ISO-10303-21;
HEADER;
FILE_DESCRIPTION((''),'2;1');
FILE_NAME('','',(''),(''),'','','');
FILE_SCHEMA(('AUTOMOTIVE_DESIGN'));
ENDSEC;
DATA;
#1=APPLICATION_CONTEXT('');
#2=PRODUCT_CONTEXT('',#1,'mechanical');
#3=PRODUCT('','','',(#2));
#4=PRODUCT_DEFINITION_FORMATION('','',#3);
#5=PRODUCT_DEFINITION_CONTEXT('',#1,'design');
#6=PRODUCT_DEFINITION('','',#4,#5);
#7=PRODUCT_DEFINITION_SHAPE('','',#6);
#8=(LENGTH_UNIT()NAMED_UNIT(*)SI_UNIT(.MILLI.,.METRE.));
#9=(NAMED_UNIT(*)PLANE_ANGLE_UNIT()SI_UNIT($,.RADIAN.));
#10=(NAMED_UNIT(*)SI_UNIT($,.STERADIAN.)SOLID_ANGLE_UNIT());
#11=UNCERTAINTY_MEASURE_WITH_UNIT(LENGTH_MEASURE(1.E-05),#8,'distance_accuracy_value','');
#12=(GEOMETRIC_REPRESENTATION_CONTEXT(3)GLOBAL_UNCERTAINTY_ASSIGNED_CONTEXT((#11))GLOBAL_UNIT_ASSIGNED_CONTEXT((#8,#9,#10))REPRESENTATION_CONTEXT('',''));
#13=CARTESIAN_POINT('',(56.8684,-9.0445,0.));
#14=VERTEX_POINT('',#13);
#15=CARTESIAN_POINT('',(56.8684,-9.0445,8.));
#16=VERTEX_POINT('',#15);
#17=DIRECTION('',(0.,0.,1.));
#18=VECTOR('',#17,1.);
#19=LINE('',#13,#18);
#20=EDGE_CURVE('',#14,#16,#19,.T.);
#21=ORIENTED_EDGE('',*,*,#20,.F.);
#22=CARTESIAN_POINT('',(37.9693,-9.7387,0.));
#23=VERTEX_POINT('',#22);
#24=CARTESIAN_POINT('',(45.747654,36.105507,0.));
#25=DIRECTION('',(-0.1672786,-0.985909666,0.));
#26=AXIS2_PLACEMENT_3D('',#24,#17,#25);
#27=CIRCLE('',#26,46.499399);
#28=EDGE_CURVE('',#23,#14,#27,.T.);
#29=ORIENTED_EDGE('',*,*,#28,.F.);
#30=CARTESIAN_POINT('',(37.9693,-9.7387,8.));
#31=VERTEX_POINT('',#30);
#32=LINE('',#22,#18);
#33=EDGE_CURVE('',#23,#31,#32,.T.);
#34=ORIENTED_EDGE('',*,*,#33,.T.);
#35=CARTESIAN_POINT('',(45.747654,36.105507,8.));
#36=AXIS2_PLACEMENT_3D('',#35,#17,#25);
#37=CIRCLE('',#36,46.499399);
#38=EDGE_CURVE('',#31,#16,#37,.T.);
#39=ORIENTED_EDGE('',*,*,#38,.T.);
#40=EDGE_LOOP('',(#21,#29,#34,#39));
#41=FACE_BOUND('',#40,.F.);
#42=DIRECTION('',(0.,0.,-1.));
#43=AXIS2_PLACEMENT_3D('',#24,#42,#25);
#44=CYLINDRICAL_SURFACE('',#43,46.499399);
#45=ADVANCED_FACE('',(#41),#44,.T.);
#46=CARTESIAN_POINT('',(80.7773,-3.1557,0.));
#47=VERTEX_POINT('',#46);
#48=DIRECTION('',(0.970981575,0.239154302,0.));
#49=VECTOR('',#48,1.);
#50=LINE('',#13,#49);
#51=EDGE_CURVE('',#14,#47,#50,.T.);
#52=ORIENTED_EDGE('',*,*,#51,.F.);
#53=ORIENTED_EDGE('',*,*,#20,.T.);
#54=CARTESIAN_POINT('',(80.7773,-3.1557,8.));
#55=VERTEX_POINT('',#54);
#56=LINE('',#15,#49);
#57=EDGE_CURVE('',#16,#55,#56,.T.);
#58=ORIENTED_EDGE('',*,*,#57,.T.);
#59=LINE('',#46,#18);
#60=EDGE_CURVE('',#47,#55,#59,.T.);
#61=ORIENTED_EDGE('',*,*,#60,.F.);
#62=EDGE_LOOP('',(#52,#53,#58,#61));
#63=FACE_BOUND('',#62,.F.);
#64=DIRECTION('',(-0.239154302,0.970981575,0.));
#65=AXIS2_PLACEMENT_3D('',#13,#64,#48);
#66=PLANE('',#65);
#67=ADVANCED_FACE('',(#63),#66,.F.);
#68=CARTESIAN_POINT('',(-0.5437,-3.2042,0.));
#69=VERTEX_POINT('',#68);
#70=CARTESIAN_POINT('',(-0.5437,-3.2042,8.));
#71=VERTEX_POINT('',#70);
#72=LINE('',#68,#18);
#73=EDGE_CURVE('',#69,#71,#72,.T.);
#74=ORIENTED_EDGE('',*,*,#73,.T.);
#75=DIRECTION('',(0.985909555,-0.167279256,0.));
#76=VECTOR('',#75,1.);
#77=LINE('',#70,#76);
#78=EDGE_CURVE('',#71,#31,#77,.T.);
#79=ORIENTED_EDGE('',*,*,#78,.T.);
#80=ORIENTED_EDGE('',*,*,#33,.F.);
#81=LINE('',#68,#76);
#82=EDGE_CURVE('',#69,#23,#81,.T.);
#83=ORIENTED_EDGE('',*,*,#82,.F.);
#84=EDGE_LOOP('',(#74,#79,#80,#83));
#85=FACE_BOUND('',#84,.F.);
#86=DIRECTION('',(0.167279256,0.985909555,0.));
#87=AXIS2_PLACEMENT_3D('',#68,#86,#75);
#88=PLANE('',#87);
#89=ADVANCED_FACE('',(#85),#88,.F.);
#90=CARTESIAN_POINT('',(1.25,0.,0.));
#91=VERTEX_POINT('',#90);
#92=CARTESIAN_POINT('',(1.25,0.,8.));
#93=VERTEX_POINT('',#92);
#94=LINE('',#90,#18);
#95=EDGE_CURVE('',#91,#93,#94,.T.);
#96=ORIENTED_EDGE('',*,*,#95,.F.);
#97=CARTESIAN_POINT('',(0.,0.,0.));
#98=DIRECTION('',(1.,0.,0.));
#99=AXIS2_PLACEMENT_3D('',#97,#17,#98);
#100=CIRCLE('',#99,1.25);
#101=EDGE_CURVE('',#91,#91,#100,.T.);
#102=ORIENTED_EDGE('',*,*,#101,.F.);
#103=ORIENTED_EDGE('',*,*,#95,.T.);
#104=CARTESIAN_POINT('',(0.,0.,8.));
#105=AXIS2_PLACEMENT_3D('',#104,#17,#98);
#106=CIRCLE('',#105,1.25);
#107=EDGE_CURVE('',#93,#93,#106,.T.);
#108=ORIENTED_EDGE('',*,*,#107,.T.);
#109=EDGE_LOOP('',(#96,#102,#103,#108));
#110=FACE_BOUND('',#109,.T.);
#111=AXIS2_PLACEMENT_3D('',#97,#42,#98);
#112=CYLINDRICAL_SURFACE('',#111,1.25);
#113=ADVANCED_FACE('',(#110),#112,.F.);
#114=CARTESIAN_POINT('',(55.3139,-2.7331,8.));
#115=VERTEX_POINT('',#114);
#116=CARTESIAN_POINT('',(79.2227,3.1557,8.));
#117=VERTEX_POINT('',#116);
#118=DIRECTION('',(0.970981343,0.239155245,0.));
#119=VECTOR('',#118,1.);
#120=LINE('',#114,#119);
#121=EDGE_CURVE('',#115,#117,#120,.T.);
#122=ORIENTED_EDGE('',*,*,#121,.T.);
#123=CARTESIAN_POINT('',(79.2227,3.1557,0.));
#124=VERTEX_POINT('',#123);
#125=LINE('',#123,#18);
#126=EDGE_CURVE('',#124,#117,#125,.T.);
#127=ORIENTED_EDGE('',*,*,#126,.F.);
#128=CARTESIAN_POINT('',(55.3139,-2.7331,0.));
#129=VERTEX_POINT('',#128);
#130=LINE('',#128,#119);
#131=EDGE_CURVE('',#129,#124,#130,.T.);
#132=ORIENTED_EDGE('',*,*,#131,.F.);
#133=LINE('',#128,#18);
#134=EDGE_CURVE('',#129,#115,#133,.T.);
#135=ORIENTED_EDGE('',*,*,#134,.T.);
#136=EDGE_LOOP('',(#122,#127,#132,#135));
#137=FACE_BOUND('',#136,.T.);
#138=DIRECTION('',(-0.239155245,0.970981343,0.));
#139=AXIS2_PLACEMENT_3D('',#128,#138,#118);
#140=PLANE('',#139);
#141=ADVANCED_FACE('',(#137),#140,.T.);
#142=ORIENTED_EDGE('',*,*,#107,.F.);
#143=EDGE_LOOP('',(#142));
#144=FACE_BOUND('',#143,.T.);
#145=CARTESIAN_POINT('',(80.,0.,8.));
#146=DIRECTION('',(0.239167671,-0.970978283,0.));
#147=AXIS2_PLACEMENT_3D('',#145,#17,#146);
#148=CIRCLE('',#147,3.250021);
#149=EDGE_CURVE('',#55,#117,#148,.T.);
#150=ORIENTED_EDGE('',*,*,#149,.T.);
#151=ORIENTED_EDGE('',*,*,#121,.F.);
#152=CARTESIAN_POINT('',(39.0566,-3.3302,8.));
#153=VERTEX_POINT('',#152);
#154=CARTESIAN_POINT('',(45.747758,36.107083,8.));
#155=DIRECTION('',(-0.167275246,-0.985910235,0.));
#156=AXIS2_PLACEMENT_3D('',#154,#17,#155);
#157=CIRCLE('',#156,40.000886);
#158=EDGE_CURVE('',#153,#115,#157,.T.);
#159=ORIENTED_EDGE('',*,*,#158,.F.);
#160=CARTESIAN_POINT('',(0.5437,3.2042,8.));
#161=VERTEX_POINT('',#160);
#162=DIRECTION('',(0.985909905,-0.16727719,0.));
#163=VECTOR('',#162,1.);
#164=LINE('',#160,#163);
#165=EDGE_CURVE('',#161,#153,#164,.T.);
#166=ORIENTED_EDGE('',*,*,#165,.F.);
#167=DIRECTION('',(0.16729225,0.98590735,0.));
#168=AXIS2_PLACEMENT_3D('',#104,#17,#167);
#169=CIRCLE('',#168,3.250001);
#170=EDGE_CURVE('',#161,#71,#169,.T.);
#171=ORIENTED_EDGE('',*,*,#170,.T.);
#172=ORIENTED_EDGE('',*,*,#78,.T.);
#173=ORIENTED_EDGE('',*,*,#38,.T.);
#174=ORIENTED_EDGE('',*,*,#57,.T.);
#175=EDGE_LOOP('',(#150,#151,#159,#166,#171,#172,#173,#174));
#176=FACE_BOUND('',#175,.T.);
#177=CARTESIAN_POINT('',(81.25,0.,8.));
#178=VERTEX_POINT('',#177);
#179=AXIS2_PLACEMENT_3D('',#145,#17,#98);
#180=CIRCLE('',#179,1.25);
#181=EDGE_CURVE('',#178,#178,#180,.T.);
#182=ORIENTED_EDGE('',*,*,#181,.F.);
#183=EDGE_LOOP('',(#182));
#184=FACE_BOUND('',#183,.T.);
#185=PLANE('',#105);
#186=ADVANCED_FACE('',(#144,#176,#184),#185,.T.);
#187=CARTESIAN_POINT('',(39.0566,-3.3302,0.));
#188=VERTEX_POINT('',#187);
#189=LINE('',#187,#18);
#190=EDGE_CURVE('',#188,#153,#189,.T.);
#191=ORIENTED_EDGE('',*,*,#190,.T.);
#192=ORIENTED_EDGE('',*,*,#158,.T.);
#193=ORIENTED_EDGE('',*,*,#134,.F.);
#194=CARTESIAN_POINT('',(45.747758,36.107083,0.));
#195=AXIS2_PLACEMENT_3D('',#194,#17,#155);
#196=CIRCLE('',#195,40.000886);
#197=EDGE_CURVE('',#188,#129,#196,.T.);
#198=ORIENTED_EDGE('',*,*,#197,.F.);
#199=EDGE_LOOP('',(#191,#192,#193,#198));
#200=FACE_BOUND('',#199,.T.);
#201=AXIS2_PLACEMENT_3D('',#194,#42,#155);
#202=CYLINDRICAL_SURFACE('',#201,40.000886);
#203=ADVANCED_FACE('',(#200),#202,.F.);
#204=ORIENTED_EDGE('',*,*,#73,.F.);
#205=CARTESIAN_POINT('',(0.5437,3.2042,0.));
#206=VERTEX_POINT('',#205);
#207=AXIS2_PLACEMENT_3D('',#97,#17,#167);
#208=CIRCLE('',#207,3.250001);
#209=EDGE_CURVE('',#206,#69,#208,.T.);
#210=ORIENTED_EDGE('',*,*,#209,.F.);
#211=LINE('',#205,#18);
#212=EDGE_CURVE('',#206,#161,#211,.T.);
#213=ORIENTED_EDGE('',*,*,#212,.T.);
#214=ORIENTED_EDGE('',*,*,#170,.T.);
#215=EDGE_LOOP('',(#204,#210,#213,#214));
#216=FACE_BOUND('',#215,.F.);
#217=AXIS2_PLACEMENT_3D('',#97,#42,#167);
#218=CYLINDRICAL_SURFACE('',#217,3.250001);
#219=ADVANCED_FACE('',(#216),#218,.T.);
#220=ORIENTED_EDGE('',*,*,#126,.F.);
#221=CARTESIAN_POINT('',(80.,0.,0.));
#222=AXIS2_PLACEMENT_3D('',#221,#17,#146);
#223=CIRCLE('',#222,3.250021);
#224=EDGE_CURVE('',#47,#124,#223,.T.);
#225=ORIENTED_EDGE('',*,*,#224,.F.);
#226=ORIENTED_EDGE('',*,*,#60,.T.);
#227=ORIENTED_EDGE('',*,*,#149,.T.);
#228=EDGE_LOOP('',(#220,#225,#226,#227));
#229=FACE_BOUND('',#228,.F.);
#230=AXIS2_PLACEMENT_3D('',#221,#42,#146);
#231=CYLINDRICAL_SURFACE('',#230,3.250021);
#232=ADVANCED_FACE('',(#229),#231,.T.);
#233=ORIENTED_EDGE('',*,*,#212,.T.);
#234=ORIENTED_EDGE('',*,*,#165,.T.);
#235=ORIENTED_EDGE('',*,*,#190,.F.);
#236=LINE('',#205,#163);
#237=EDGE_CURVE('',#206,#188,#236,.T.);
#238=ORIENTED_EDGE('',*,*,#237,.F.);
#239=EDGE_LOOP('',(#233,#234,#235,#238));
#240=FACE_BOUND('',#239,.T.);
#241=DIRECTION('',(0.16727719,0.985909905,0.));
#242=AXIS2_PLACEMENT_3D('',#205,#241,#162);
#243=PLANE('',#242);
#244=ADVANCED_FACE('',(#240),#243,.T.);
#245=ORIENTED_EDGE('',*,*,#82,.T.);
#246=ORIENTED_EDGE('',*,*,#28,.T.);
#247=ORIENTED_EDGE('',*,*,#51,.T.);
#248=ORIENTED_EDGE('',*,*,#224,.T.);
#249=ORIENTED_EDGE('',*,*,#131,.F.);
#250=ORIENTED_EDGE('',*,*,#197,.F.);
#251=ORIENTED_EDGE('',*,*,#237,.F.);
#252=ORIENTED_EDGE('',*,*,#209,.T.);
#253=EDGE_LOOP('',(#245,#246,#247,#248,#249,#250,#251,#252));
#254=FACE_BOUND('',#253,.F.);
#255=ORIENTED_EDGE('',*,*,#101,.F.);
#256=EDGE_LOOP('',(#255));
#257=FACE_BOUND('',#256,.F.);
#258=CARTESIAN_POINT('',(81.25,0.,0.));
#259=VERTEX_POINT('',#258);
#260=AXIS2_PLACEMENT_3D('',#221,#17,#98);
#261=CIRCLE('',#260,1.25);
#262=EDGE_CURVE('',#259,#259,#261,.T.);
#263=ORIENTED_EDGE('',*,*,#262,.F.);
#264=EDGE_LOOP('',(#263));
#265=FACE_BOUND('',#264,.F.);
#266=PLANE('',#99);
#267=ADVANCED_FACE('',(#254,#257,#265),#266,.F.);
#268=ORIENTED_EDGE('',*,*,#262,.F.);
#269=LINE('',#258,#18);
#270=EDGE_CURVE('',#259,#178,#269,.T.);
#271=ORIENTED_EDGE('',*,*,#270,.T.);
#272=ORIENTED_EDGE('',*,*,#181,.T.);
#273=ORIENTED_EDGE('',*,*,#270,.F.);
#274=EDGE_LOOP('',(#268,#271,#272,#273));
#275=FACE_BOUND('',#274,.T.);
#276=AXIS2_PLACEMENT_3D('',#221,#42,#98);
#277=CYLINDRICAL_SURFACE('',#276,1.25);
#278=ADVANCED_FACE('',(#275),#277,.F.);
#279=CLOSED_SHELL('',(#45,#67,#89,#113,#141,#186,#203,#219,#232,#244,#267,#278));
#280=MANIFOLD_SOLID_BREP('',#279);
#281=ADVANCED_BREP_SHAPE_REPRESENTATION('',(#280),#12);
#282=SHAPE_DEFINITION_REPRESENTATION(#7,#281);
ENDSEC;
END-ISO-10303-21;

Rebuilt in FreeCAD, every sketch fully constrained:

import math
import FreeCAD as App
import Part
import Sketcher

V = App.Vector
Q = App.Units.Quantity

doc = App.newDocument("Part")
params = doc.addObject("Spreadsheet::Sheet", "Params")
for row, (alias, value) in enumerate([
    ("sketch1_radius", "40 mm"),
    ("sketch1_diameter", "2.5 mm"),
    ("sketch1_radius2", "46.5 mm"),
    ("pad1_length", "8 mm"),
], start=1):
    params.set(f"A{row}", alias)
    params.set(f"B{row}", "=" + value)
    params.setAlias(f"B{row}", alias)

body = doc.addObject("PartDesign::Body", "Body")

# Sketch on XY plane
sketch1 = doc.addObject("Sketcher::SketchObject", "Sketch")
body.addObject(sketch1)
sketch1.AttachmentSupport = (doc.XY_Plane, [""])
sketch1.MapMode = "FlatFace"
sketch1.addGeometry([
    Part.LineSegment(V(39.1, -3.3, 0), V(0.5, 3.2, 0)),  # 0
    Part.ArcOfCircle(Part.Circle(V(0, 0, 0), V(0, 0, 1), 3.3), math.radians(80), math.radians(260)),  # 1
    Part.LineSegment(V(-0.5, -3.2, 0), V(38, -9.7, 0)),  # 2
    Part.ArcOfCircle(Part.Circle(V(45.7, 36.1, 0), V(0, 0, 1), 46.5), math.radians(-100), math.radians(-76)),  # 3
    Part.LineSegment(V(56.9, -9, 0), V(80.8, -3.2, 0)),  # 4
    Part.ArcOfCircle(Part.Circle(V(80, 0, 0), V(0, 0, 1), 3.3), math.radians(-76), math.radians(104)),  # 5
    Part.LineSegment(V(79.2, 3.2, 0), V(55.3, -2.7, 0)),  # 6
    Part.ArcOfCircle(Part.Circle(V(45.7, 36.1, 0), V(0, 0, 1), 40), math.radians(-100), math.radians(-76)),  # 7
    Part.Circle(V(0, 0, 0), V(0, 0, 1), 1.2),  # 8
    Part.Circle(V(80, 0, 0), V(0, 0, 1), 1.2),  # 9
], False)
sketch1.addConstraint([
    Sketcher.Constraint("Tangent", 0, 2, 1, 1),
    Sketcher.Constraint("Tangent", 1, 2, 2, 1),
    Sketcher.Constraint("Tangent", 2, 2, 3, 1),
    Sketcher.Constraint("Tangent", 3, 2, 4, 1),
    Sketcher.Constraint("Tangent", 4, 2, 5, 1),
    Sketcher.Constraint("Tangent", 5, 2, 6, 1),
    Sketcher.Constraint("Tangent", 6, 2, 7, 2),
    Sketcher.Constraint("Tangent", 7, 1, 0, 1),
    Sketcher.Constraint("Coincident", 1, 3, -1, 1),
    Sketcher.Constraint("Coincident", 8, 3, -1, 1),
    Sketcher.Constraint("Coincident", 7, 3, 3, 3),
    Sketcher.Constraint("Coincident", 9, 3, 5, 3),
    Sketcher.Constraint("Equal", 1, 5),
    Sketcher.Constraint("Equal", 8, 9),
    Sketcher.Constraint("PointOnObject", 5, 3, -1),
    Sketcher.Constraint("Parallel", 0, 2),
    Sketcher.Constraint("Radius", 7, Q("40 mm")),
    Sketcher.Constraint("Diameter", 8, Q("2.5 mm")),
    Sketcher.Constraint("DistanceX", -1, 1, 5, 3, Q("80 mm")),
    Sketcher.Constraint("Radius", 3, Q("46.5 mm")),
    Sketcher.Constraint("Angle", 0, Q("170.3705 deg")),
    Sketcher.Constraint("DistanceX", -1, 1, 6, 2, Q("55.314 mm")),
])
sketch1.setExpression("Constraints[16]", "Params.sketch1_radius")
sketch1.setExpression("Constraints[17]", "Params.sketch1_diameter")
sketch1.setExpression("Constraints[19]", "Params.sketch1_radius2")
pad1 = doc.addObject("PartDesign::Pad", "Pad")
body.addObject(pad1)
pad1.Profile = sketch1
pad1.setExpression("Length", "Params.pad1_length")

doc.recompute()
